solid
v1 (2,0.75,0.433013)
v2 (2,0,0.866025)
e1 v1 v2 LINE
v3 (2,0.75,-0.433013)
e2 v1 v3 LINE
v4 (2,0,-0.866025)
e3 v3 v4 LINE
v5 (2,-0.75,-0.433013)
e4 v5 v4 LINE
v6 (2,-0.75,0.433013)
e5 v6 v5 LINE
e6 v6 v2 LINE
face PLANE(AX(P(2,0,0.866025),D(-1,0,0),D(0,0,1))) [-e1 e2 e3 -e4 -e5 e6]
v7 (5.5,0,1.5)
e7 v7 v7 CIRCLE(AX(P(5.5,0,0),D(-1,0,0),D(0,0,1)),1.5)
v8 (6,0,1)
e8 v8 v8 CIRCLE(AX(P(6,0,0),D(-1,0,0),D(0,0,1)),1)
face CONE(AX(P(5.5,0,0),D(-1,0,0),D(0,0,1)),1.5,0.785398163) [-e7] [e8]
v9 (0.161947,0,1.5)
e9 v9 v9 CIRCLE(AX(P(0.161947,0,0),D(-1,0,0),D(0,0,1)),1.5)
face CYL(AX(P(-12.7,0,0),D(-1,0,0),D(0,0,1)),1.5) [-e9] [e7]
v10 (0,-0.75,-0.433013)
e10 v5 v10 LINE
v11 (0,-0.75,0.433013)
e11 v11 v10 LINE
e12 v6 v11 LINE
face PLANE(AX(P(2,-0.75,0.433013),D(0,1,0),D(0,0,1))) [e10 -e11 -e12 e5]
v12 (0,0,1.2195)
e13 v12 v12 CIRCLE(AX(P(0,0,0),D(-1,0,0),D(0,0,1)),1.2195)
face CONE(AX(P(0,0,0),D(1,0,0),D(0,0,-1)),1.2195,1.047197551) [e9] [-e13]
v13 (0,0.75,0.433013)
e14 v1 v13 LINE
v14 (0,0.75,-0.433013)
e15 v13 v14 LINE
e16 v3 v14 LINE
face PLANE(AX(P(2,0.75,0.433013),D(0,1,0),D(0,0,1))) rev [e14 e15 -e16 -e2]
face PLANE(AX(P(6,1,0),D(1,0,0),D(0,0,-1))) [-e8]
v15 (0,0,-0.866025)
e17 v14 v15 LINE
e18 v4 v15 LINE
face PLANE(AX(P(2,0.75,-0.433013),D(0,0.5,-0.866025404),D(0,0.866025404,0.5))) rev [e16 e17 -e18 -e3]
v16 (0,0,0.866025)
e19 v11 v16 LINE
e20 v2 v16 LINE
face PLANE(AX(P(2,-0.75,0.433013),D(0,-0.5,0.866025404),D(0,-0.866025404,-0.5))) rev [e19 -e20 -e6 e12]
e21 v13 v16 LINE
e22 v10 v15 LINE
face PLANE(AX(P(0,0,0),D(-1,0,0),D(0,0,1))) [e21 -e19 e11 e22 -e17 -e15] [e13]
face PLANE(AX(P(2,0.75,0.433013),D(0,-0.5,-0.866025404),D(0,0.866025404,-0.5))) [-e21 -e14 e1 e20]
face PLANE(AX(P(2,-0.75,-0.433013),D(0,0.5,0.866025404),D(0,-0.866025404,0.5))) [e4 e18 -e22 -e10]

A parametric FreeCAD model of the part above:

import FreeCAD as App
import Part
import Sketcher
from FreeCAD import Vector
Q = App.Units.Quantity


def add_polygon(sketch, points):
    """Adds a closed chain of lines whose ends are joined by coincident constraints."""
    first, n = sketch.GeometryCount, len(points)
    for a, b in zip(points, points[1:] + points[:1]):
        sketch.addGeometry(Part.LineSegment(App.Vector(*a, 0), App.Vector(*b, 0)), False)
    for i in range(n):
        sketch.addConstraint(Sketcher.Constraint("Coincident", first + i, 2, first + (i + 1) % n, 1))

doc = App.newDocument("Part")
body = doc.addObject("PartDesign::Body", "Body")

# Sketch on XY plane
sketch1 = body.newObject("Sketcher::SketchObject", "Sketch")
sketch1.AttachmentSupport = (doc.getObject("XY_Plane"), [""])
sketch1.MapMode = "FlatFace"
add_polygon(sketch1, [(0, 1.2195), (0, 0), (6, 0), (6, 1), (5.5, 1.5), (0.161947, 1.5)])  # lines 0-5
sketch1.addConstraint(Sketcher.Constraint("Vertical", 0))
sketch1.addConstraint(Sketcher.Constraint("Horizontal", 1))
sketch1.addConstraint(Sketcher.Constraint("Vertical", 2))
sketch1.addConstraint(Sketcher.Constraint("Horizontal", 4))
sketch1.addConstraint(Sketcher.Constraint("Coincident", 0, 2, -1, 1))
sketch1.addConstraint(Sketcher.Constraint("DistanceX", 1, 1, 1, 2, 6.0))
sketch1.addConstraint(Sketcher.Constraint("DistanceY", 2, 1, 2, 2, 1.0))
sketch1.addConstraint(Sketcher.Constraint("Angle", 3, Q("135 deg")))
sketch1.addConstraint(Sketcher.Constraint("Angle", 5, Q("-120 deg")))
sketch1.addConstraint(Sketcher.Constraint("DistanceX", -1, 1, 3, 2, 5.5))
sketch1.addConstraint(Sketcher.Constraint("DistanceY", 0, 2, 0, 1, 1.2195))
revolution = body.newObject("PartDesign::Revolution", "Revolution")
revolution.Profile = sketch1
revolution.ReferenceAxis = (sketch1, ["H_Axis"])
revolution.Angle = 360

# Sketch on YZ plane
sketch2 = body.newObject("Sketcher::SketchObject", "Sketch001")
sketch2.AttachmentSupport = (doc.getObject("YZ_Plane"), [""])
sketch2.MapMode = "FlatFace"
add_polygon(sketch2, [(0.75, 0.433013), (0.75, -0.433013), (0, -0.866025), (-0.75, -0.433013), (-0.75, 0.433013), (0, 0.866025)])  # lines 0-5
sketch2.addConstraint(Sketcher.Constraint("Vertical", 0))
sketch2.addConstraint(Sketcher.Constraint("Vertical", 3))
sketch2.addConstraint(Sketcher.Constraint("Symmetric", 0, 2, 3, 2, -1, 1))
sketch2.addConstraint(Sketcher.Constraint("Symmetric", 1, 2, 4, 2, -1, 1))
sketch2.addConstraint(Sketcher.Constraint("PointOnObject", 1, 2, -2))
sketch2.addConstraint(Sketcher.Constraint("Parallel", 2, 5))
sketch2.addConstraint(Sketcher.Constraint("Horizontal", 0, 2, 2, 2))
sketch2.addConstraint(Sketcher.Constraint("Angle", 1, Q("-150 deg")))
sketch2.addConstraint(Sketcher.Constraint("DistanceX", 2, 2, 0, 2, 1.5))
sketch2.addConstraint(Sketcher.Constraint("DistanceY", 0, 2, 0, 1, 0.866025))
pocket1 = body.newObject("PartDesign::Pocket", "Pocket")
pocket1.Profile = sketch2
pocket1.Length = 2
pocket1.Reversed = True

doc.recompute()
